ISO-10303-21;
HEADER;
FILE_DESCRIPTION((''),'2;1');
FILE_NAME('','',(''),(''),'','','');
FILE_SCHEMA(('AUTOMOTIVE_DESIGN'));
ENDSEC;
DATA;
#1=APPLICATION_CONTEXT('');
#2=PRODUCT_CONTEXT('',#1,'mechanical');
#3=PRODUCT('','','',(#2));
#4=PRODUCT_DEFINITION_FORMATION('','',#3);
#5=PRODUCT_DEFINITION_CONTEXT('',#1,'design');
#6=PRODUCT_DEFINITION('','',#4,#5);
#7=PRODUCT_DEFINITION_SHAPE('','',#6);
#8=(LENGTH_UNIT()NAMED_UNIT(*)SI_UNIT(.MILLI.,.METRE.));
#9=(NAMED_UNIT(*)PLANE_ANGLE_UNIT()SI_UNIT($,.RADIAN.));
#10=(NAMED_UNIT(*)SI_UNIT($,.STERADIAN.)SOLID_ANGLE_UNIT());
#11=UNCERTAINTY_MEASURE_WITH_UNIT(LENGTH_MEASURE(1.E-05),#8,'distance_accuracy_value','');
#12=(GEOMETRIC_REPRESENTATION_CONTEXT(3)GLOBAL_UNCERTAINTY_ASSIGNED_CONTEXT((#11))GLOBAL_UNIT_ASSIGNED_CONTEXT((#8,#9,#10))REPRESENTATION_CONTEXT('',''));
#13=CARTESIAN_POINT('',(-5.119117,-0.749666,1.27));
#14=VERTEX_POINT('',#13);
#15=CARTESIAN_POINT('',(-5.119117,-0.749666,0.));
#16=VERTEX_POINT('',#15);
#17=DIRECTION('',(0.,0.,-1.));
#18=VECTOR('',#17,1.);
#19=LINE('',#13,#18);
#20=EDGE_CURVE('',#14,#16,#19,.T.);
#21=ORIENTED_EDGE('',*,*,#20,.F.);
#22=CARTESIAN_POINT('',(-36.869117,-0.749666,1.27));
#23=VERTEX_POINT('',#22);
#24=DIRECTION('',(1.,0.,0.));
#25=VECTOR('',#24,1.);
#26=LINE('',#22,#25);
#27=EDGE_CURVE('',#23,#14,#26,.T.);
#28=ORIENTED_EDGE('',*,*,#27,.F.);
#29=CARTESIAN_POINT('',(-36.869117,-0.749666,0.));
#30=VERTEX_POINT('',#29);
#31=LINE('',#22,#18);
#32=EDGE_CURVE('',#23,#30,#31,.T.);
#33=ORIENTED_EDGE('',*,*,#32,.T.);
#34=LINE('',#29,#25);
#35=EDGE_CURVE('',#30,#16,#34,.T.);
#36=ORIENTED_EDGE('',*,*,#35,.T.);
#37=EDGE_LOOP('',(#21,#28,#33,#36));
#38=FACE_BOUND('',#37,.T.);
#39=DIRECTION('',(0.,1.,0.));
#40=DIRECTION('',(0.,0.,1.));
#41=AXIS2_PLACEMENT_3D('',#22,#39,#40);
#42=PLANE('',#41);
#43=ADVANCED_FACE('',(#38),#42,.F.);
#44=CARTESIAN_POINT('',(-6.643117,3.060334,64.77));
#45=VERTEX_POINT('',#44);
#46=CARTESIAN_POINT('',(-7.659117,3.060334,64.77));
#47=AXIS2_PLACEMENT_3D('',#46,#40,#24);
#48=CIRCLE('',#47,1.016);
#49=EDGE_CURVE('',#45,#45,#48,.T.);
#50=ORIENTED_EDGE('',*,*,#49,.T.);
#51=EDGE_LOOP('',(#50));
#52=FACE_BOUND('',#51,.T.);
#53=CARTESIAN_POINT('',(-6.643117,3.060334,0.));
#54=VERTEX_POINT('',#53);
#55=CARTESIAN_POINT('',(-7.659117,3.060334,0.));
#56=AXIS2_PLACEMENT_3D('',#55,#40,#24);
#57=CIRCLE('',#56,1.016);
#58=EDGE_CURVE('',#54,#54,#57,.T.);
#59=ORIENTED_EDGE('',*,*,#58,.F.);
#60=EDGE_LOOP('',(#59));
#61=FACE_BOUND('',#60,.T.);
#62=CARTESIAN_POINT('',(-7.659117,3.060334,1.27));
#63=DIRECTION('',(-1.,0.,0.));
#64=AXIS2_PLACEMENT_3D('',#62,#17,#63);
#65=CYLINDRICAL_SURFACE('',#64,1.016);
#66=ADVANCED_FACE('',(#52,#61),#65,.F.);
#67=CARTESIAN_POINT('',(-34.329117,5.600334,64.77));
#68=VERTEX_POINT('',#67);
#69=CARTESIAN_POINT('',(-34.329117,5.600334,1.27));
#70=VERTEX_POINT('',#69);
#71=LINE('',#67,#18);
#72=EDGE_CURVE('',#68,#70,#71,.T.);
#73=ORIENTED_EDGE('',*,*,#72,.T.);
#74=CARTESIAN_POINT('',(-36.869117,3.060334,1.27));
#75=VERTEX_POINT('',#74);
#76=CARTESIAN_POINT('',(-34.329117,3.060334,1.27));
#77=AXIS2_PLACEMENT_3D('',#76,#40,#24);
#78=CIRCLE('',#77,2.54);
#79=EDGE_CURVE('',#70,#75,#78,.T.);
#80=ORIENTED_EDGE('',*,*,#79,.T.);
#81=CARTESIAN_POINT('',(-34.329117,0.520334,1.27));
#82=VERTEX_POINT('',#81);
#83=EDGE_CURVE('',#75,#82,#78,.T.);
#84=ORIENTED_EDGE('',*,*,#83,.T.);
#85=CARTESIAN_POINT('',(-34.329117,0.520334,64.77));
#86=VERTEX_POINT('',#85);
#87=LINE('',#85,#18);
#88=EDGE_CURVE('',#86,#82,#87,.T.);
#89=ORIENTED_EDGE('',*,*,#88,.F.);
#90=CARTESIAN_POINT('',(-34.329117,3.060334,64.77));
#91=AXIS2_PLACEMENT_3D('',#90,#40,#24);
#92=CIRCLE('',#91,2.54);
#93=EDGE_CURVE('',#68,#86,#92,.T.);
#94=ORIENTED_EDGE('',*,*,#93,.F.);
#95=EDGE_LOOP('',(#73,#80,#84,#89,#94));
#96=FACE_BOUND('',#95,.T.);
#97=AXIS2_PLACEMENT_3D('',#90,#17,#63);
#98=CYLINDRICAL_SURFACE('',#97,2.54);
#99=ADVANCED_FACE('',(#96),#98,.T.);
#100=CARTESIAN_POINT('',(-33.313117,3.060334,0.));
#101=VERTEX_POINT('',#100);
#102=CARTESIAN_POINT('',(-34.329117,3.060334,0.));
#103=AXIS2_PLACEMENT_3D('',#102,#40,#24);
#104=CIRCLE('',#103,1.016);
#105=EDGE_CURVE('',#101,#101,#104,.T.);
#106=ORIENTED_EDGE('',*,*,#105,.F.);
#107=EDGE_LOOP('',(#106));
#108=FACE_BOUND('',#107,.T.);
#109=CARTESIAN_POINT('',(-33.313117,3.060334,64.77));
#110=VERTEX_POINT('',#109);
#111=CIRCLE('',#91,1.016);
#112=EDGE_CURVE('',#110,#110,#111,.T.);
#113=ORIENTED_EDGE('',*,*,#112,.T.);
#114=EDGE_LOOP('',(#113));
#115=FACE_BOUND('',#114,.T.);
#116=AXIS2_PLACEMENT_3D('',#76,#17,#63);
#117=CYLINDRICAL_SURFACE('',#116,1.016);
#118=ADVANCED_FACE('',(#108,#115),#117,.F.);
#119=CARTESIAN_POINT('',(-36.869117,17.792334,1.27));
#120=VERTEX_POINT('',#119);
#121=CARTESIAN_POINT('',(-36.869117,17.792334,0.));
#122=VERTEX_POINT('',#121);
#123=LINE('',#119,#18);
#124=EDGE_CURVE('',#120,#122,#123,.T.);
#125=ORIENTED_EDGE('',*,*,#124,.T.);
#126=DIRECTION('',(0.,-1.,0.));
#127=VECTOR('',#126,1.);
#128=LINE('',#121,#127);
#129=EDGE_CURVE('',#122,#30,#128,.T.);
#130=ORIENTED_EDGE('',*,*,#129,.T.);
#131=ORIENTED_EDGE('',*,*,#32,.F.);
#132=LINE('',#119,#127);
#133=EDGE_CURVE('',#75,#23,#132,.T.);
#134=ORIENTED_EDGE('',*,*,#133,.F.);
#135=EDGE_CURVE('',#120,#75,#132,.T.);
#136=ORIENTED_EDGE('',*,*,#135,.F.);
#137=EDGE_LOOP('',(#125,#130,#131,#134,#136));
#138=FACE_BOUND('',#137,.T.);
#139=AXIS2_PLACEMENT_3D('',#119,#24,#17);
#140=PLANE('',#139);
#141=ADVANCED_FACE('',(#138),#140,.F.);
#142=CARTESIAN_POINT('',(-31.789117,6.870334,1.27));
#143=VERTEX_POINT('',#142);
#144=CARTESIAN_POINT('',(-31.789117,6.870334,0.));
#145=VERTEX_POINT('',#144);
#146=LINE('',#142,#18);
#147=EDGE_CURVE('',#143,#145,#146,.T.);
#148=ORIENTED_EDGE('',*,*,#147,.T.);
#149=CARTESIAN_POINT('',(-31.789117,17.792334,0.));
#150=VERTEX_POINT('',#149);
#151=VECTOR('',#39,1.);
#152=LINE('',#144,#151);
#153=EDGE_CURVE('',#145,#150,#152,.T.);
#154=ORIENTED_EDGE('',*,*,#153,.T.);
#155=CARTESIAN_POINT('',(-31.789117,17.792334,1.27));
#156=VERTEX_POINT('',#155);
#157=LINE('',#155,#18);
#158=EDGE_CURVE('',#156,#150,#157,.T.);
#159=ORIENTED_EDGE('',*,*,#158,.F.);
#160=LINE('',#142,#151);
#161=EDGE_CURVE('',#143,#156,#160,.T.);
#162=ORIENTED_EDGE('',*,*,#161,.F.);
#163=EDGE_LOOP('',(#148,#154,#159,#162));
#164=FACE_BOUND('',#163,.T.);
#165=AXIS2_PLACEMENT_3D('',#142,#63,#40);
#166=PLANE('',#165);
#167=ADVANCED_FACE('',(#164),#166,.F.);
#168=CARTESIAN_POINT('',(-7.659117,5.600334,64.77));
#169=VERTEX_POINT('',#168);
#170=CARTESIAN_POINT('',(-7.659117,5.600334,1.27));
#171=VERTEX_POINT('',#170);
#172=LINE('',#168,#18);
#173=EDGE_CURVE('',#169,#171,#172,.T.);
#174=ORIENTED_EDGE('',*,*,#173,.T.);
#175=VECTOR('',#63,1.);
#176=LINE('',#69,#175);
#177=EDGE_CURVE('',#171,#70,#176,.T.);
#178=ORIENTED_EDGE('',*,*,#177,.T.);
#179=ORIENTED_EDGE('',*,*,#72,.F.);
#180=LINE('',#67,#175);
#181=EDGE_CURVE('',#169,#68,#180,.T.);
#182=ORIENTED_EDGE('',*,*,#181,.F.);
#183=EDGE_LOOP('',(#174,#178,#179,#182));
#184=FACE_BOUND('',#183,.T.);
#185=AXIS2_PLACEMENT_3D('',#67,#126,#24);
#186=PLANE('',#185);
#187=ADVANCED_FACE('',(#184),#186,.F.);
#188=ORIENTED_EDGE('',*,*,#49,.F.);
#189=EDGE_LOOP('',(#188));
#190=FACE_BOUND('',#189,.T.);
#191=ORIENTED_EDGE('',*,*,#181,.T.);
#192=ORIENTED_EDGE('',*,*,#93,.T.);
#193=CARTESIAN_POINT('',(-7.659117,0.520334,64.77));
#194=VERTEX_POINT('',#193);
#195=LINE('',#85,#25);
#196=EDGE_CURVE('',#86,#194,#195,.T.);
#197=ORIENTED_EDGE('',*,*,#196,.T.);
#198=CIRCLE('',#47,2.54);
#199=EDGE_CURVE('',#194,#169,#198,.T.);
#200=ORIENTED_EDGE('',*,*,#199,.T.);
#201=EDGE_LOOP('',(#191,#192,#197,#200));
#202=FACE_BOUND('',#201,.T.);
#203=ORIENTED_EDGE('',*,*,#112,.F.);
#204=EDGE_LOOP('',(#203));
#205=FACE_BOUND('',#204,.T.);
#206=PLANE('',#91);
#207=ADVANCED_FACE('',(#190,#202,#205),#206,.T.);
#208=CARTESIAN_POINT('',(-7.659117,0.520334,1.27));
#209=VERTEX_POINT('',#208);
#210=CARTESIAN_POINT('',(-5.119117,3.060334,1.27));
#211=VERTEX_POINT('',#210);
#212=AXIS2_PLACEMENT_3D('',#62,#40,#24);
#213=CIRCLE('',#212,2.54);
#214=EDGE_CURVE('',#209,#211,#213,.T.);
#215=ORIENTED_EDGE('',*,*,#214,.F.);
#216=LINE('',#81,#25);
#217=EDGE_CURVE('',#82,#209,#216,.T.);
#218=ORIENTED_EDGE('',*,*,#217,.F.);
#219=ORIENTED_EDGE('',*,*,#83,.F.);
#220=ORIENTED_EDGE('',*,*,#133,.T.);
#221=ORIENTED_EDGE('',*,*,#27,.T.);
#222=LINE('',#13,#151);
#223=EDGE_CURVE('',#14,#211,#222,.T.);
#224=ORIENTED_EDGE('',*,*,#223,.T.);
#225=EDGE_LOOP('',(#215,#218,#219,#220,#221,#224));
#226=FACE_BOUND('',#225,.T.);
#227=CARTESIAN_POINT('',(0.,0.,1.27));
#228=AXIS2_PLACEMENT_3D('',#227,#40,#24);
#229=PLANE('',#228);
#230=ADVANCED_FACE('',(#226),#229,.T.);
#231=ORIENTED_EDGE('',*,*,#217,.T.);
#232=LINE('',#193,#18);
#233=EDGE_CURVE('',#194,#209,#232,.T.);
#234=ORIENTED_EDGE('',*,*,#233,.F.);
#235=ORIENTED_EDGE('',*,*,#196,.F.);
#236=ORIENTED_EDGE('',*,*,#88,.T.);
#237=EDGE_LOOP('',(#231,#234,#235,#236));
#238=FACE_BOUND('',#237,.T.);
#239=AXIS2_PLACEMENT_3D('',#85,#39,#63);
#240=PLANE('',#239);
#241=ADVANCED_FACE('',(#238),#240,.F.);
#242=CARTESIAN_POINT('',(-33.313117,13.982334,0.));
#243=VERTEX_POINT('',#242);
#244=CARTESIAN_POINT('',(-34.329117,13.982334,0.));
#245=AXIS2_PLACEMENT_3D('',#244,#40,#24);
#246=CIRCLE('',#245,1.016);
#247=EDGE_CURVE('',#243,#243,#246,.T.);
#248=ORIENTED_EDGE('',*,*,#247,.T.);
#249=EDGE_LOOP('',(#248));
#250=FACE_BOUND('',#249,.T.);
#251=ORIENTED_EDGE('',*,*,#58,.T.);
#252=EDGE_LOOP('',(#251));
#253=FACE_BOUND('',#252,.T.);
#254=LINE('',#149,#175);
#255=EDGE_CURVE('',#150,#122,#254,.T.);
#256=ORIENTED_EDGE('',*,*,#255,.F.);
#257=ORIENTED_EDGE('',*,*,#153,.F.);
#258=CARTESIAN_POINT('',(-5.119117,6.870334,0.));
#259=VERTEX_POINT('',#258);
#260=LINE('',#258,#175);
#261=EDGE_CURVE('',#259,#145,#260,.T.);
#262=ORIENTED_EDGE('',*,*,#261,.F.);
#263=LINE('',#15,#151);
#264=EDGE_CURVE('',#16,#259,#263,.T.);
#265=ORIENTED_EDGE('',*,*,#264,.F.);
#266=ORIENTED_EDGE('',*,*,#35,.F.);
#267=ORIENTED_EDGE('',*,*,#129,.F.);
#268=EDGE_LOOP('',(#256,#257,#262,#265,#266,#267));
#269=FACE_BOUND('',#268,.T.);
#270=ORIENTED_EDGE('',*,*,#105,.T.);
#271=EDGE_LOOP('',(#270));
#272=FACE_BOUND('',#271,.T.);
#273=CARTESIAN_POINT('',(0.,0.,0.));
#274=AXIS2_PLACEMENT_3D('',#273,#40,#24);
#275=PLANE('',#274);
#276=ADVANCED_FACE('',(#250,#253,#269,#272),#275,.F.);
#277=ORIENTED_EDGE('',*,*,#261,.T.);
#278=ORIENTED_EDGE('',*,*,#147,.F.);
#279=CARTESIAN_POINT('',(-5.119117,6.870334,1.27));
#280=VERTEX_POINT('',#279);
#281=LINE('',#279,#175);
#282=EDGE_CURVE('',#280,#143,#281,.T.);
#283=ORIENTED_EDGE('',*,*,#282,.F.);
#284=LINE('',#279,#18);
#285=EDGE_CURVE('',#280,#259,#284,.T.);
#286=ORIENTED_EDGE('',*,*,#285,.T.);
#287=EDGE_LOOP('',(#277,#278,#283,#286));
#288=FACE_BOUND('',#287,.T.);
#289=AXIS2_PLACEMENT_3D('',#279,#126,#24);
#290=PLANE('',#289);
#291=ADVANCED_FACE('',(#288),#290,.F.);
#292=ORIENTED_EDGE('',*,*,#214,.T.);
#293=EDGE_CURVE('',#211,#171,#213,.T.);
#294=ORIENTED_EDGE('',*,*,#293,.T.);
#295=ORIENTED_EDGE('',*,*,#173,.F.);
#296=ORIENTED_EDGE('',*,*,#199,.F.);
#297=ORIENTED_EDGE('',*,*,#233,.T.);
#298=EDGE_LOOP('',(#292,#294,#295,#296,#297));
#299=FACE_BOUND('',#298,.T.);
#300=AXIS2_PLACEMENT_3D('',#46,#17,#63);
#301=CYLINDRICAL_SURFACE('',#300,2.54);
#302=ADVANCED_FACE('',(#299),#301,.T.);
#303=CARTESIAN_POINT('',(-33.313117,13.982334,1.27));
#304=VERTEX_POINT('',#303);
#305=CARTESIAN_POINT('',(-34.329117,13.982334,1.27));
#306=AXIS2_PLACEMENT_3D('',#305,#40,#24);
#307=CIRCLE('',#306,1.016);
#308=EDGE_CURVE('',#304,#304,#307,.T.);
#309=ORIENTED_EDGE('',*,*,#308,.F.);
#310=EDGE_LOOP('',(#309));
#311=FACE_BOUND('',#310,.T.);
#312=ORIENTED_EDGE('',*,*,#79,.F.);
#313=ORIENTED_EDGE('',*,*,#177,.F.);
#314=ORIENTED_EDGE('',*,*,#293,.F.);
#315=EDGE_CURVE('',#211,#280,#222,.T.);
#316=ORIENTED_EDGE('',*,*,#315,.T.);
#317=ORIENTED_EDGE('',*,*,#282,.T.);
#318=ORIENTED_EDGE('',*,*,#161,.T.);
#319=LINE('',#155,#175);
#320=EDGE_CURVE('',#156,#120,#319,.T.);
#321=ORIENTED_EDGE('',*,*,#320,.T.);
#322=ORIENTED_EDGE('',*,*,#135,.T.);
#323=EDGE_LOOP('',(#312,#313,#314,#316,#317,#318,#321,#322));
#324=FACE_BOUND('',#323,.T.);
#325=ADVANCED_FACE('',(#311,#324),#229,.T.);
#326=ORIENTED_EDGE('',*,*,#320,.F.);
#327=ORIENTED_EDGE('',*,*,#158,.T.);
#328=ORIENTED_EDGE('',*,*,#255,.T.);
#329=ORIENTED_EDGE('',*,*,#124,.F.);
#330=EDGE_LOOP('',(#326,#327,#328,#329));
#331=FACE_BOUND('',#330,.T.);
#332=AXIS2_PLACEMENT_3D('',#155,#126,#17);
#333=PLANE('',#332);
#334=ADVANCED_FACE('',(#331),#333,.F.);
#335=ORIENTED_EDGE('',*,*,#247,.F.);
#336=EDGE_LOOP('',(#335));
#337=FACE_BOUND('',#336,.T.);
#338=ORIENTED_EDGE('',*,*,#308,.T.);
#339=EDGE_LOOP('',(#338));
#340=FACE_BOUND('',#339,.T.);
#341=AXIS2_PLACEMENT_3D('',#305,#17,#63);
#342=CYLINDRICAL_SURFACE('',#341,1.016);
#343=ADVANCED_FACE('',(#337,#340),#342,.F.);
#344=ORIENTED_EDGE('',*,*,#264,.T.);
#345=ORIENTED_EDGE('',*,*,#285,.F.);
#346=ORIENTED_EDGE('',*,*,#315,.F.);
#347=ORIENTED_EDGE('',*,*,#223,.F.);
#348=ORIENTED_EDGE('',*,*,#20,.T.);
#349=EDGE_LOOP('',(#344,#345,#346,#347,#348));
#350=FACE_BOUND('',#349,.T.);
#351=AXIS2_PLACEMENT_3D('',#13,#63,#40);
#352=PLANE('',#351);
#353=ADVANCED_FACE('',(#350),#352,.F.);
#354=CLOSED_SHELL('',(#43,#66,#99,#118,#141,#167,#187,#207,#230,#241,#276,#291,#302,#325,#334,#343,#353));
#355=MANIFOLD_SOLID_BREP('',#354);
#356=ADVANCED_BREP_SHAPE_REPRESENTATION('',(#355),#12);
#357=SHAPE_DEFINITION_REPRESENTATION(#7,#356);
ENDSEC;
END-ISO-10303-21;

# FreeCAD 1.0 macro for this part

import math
import FreeCAD as App
import Part
import Sketcher
from FreeCAD import Vector
Q = App.Units.Quantity


def add_polygon(sketch, points):
    """Adds a closed chain of lines whose ends are joined by coincident constraints."""
    first, n = sketch.GeometryCount, len(points)
    for a, b in zip(points, points[1:] + points[:1]):
        sketch.addGeometry(Part.LineSegment(App.Vector(*a, 0), App.Vector(*b, 0)), False)
    for i in range(n):
        sketch.addConstraint(Sketcher.Constraint("Coincident", first + i, 2, first + (i + 1) % n, 1))

doc = App.newDocument("Part")
body = doc.addObject("PartDesign::Body", "Body")

# Sketch on XY plane
sketch1 = doc.addObject("Sketcher::SketchObject", "Sketch")
body.addObject(sketch1)
sketch1.AttachmentSupport = (doc.XY_Plane, [""])
sketch1.MapMode = "FlatFace"
add_polygon(sketch1, [(-36.869117, 17.792334), (-36.869117, -0.749666), (-5.119117, -0.749666), (-5.119117, 6.870334), (-31.789117, 6.870334), (-31.789117, 17.792334)])  # lines 0-5
sketch1.addGeometry(Part.Circle(Vector(-34.329117, 3.060334, 0), Vector(0, 0, 1), 1.016), False)  # 6
sketch1.addGeometry(Part.Circle(Vector(-7.659117, 3.060334, 0), Vector(0, 0, 1), 1.016), False)  # 7
sketch1.addGeometry(Part.Circle(Vector(-34.329117, 13.982334, 0), Vector(0, 0, 1), 1.016), False)  # 8
sketch1.addConstraint(Sketcher.Constraint("Vertical", 0))
sketch1.addConstraint(Sketcher.Constraint("Horizontal", 1))
sketch1.addConstraint(Sketcher.Constraint("Vertical", 2))
sketch1.addConstraint(Sketcher.Constraint("Horizontal", 3))
sketch1.addConstraint(Sketcher.Constraint("Vertical", 4))
sketch1.addConstraint(Sketcher.Constraint("Horizontal", 5))
sketch1.addConstraint(Sketcher.Constraint("Equal", 6, 7))
sketch1.addConstraint(Sketcher.Constraint("Equal", 7, 8))
sketch1.addConstraint(Sketcher.Constraint("Horizontal", 6, 3, 7, 3))
sketch1.addConstraint(Sketcher.Constraint("Vertical", 6, 3, 8, 3))
sketch1.addConstraint(Sketcher.Constraint("Diameter", 6, Q("0.08 in")))
sketch1.addConstraint(Sketcher.Constraint("DistanceX", 5, 2, 5, 1, Q("0.2 in")))
sketch1.addConstraint(Sketcher.Constraint("DistanceY", 2, 1, 2, 2, Q("0.3 in")))
sketch1.addConstraint(Sketcher.Constraint("DistanceX", 1, 1, 1, 2, Q("1.25 in")))
sketch1.addConstraint(Sketcher.Constraint("DistanceY", 0, 2, 0, 1, Q("0.73 in")))
sketch1.addConstraint(Sketcher.Constraint("DistanceX", 0, 2, 6, 3, Q("0.1 in")))
sketch1.addConstraint(Sketcher.Constraint("DistanceX", 7, 3, 1, 2, Q("0.1 in")))
sketch1.addConstraint(Sketcher.Constraint("DistanceY", 6, 3, 8, 3, Q("0.43 in")))
sketch1.addConstraint(Sketcher.Constraint("DistanceY", 0, 2, 6, 3, Q("0.15 in")))
sketch1.addConstraint(Sketcher.Constraint("DistanceX", 6, 3, -1, 1, 34.329117))
sketch1.addConstraint(Sketcher.Constraint("DistanceY", -1, 1, 6, 3, 3.060334))
pad1 = doc.addObject("PartDesign::Pad", "Pad")
body.addObject(pad1)
pad1.Profile = sketch1
pad1.Length = Q("0.05 in")

# Sketch on XY plane
sketch2 = doc.addObject("Sketcher::SketchObject", "Sketch001")
body.addObject(sketch2)
sketch2.AttachmentSupport = (doc.XY_Plane, [""])
sketch2.MapMode = "FlatFace"
sketch2.AttachmentOffset = App.Placement(Vector(0, 0, 0.05 * 25.4), App.Rotation())
sketch2.addGeometry(Part.LineSegment(Vector(-7.659117, 5.600334, 0), Vector(-34.329117, 5.600334, 0)), False)
sketch2.addGeometry(Part.ArcOfCircle(Part.Circle(Vector(-34.329117, 3.060334, 0), Vector(0, 0, 1), 2.54), math.radians(90), math.radians(270)), False)
sketch2.addGeometry(Part.LineSegment(Vector(-34.329117, 0.520334, 0), Vector(-7.659117, 0.520334, 0)), False)
sketch2.addGeometry(Part.ArcOfCircle(Part.Circle(Vector(-7.659117, 3.060334, 0), Vector(0, 0, 1), 2.54), math.radians(-90), math.radians(90)), False)
sketch2.addGeometry(Part.Circle(Vector(-7.659117, 3.060334, 0), Vector(0, 0, 1), 1.016), False)
sketch2.addGeometry(Part.Circle(Vector(-34.329117, 3.060334, 0), Vector(0, 0, 1), 1.016), False)
sketch2.addConstraint(Sketcher.Constraint("Tangent", 0, 2, 1, 1))
sketch2.addConstraint(Sketcher.Constraint("Tangent", 1, 2, 2, 1))
sketch2.addConstraint(Sketcher.Constraint("Tangent", 2, 2, 3, 1))
sketch2.addConstraint(Sketcher.Constraint("Tangent", 3, 2, 0, 1))
sketch2.addConstraint(Sketcher.Constraint("Horizontal", 0))
sketch2.addConstraint(Sketcher.Constraint("Horizontal", 2))
sketch2.addConstraint(Sketcher.Constraint("Coincident", 4, 3, 3, 3))
sketch2.addConstraint(Sketcher.Constraint("Coincident", 5, 3, 1, 3))
sketch2.addConstraint(Sketcher.Constraint("Equal", 4, 5))
sketch2.addConstraint(Sketcher.Constraint("Radius", 1, Q("0.1 in")))
sketch2.addConstraint(Sketcher.Constraint("Diameter", 4, Q("0.08 in")))
sketch2.addConstraint(Sketcher.Constraint("DistanceX", 0, 2, 0, 1, Q("1.05 in")))
sketch2.addConstraint(Sketcher.Constraint("DistanceX", 1, 3, -1, 1, 34.329117))
sketch2.addConstraint(Sketcher.Constraint("DistanceY", -1, 1, 1, 3, 3.060334))
pad2 = doc.addObject("PartDesign::Pad", "Pad001")
body.addObject(pad2)
pad2.Profile = sketch2
pad2.Length = Q("2.5 in")

doc.recompute()
